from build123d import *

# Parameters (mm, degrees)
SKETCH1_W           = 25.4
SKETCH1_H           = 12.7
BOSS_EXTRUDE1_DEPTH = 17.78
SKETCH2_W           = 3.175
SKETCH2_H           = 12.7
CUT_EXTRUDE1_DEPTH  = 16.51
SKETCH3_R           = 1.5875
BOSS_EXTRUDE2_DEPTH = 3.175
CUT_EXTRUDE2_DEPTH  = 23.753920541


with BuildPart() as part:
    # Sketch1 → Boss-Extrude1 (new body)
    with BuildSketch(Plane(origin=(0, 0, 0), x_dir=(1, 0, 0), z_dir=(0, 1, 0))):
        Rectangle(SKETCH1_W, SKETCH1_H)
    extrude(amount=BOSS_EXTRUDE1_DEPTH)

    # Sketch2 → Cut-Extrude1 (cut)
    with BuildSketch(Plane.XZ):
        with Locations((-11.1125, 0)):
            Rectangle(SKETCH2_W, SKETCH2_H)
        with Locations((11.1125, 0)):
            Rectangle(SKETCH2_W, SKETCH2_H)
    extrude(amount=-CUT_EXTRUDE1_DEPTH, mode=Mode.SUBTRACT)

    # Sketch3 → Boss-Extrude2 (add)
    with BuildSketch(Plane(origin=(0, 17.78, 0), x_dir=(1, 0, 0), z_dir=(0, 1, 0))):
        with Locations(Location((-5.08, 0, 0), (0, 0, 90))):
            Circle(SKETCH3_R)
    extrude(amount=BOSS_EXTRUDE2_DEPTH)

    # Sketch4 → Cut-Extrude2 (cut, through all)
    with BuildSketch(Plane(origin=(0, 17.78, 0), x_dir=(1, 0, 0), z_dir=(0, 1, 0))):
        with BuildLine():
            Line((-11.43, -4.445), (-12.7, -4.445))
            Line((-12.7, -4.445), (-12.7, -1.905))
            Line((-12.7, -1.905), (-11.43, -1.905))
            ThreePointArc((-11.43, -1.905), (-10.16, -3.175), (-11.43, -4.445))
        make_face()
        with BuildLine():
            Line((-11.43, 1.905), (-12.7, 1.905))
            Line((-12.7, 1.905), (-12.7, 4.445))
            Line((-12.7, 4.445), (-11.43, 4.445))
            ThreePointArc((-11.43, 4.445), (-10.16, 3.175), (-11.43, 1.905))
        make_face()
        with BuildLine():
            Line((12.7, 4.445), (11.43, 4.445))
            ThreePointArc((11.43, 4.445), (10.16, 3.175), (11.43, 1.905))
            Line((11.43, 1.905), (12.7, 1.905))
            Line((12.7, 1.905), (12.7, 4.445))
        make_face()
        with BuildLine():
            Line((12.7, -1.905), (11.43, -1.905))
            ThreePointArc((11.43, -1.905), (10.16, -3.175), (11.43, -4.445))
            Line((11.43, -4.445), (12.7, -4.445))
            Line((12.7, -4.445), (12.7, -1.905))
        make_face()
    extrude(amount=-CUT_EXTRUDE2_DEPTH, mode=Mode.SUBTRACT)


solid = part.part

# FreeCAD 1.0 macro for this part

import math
import FreeCAD as App
import Part
import Sketcher

V = App.Vector
Q = App.Units.Quantity

doc = App.newDocument("Part")
body = doc.addObject("PartDesign::Body", "Body")

sketch1 = body.newObject("Sketcher::SketchObject", "Sketch")
sketch1.AttachmentSupport = (doc.getObject("XZ_Plane"), [""])
sketch1.MapMode = "FlatFace"
sketch1.addGeometry([
    Part.LineSegment(V(-13, -6, 0), V(-13, 6, 0)),
    Part.LineSegment(V(-13, 6, 0), V(13, 6, 0)),
    Part.LineSegment(V(13, 6, 0), V(13, -6, 0)),
    Part.LineSegment(V(13, -6, 0), V(-13, -6, 0)),
], False)
sketch1.addConstraint([
    Sketcher.Constraint("Coincident", 0, 2, 1, 1),
    Sketcher.Constraint("Coincident", 1, 2, 2, 1),
    Sketcher.Constraint("Coincident", 2, 2, 3, 1),
    Sketcher.Constraint("Coincident", 3, 2, 0, 1),
    Sketcher.Constraint("Vertical", 0),
    Sketcher.Constraint("Horizontal", 1),
    Sketcher.Constraint("Vertical", 2),
    Sketcher.Constraint("Horizontal", 3),
    Sketcher.Constraint("Symmetric", 0, 2, 2, 2, -1, 1),
    Sketcher.Constraint("DistanceX", 1, 1, 1, 2, Q("1 in")),
    Sketcher.Constraint("DistanceY", 0, 1, 0, 2, Q("0.5 in")),
])
pad1 = body.newObject("PartDesign::Pad", "Pad")
pad1.Profile = sketch1
pad1.Length = Q("0.7 in")
pad1.Reversed = True

sketch2 = body.newObject("Sketcher::SketchObject", "Sketch001")
sketch2.AttachmentSupport = (doc.getObject("XZ_Plane"), [""])
sketch2.MapMode = "FlatFace"
sketch2.addGeometry([
    Part.LineSegment(V(-12.7, 6.3, 0), V(-12.7, -6.3, 0)),
    Part.LineSegment(V(-12.7, -6.3, 0), V(-9.5, -6.3, 0)),
    Part.LineSegment(V(-9.5, -6.3, 0), V(-9.5, 6.3, 0)),
    Part.LineSegment(V(-9.5, 6.3, 0), V(-12.7, 6.3, 0)),
    Part.LineSegment(V(9.5, 6.3, 0), V(9.5, -6.3, 0)),
    Part.LineSegment(V(9.5, -6.3, 0), V(12.7, -6.3, 0)),
    Part.LineSegment(V(12.7, -6.3, 0), V(12.7, 6.3, 0)),
    Part.LineSegment(V(12.7, 6.3, 0), V(9.5, 6.3, 0)),
], False)
sketch2.addConstraint([
    Sketcher.Constraint("Coincident", 0, 2, 1, 1),
    Sketcher.Constraint("Coincident", 1, 2, 2, 1),
    Sketcher.Constraint("Coincident", 2, 2, 3, 1),
    Sketcher.Constraint("Coincident", 3, 2, 0, 1),
    Sketcher.Constraint("Coincident", 4, 2, 5, 1),
    Sketcher.Constraint("Coincident", 5, 2, 6, 1),
    Sketcher.Constraint("Coincident", 6, 2, 7, 1),
    Sketcher.Constraint("Coincident", 7, 2, 4, 1),
    Sketcher.Constraint("Vertical", 0),
    Sketcher.Constraint("Horizontal", 1),
    Sketcher.Constraint("Vertical", 2),
    Sketcher.Constraint("Horizontal", 3),
    Sketcher.Constraint("Vertical", 4),
    Sketcher.Constraint("Horizontal", 5),
    Sketcher.Constraint("Vertical", 6),
    Sketcher.Constraint("Horizontal", 7),
    Sketcher.Constraint("Symmetric", 2, 2, 4, 2, -1, 1),
    Sketcher.Constraint("Symmetric", 0, 2, 6, 2, -1, 1),
    Sketcher.Constraint("Horizontal", 1, 2, 4, 2),
    Sketcher.Constraint("DistanceY", 0, 2, 0, 1, Q("0.5 in")),
    Sketcher.Constraint("DistanceX", 0, 2, 5, 2, Q("1 in")),
    Sketcher.Constraint("DistanceX", 1, 1, 1, 2, Q("0.125 in")),
])
pocket1 = body.newObject("PartDesign::Pocket", "Pocket")
pocket1.Profile = sketch2
pocket1.Length = Q("0.65 in")

sketch3 = body.newObject("Sketcher::SketchObject", "Sketch002")
sketch3.AttachmentSupport = (doc.getObject("XZ_Plane"), [""])
sketch3.MapMode = "FlatFace"
sketch3.AttachmentOffset = App.Placement(V(0, 0, -0.7 * 25.4), App.Rotation())
sketch3.addGeometry(Part.Circle(V(-5.1, 0, 0), V(0, 0, 1), 1.6), False)
sketch3.addConstraint([
    Sketcher.Constraint("PointOnObject", 0, 3, -1),
    Sketcher.Constraint("Diameter", 0, Q("0.125 in")),
    Sketcher.Constraint("DistanceX", 0, 3, -1, 1, Q("0.2 in")),
])
pad2 = body.newObject("PartDesign::Pad", "Pad001")
pad2.Profile = sketch3
pad2.Length = Q("0.125 in")
pad2.Reversed = True

sketch4 = body.newObject("Sketcher::SketchObject", "Sketch003")
sketch4.AttachmentSupport = (doc.getObject("XZ_Plane"), [""])
sketch4.MapMode = "FlatFace"
sketch4.AttachmentOffset = App.Placement(V(0, 0, -0.7 * 25.4), App.Rotation())
sketch4.addGeometry([
    Part.LineSegment(V(-12.7, 4.4, 0), V(-11.4, 4.4, 0)),
    Part.ArcOfCircle(Part.Circle(V(-11.4, 3.2, 0), V(0, 0, 1), 1.3), math.radians(-90), math.radians(90)),
    Part.LineSegment(V(-11.4, 1.9, 0), V(-12.7, 1.9, 0)),
    Part.LineSegment(V(-12.7, 1.9, 0), V(-12.7, 4.4, 0)),
    Part.LineSegment(V(-12.7, -1.9, 0), V(-11.4, -1.9, 0)),
    Part.ArcOfCircle(Part.Circle(V(-11.4, -3.2, 0), V(0, 0, 1), 1.3), math.radians(-90), math.radians(90)),
    Part.LineSegment(V(-11.4, -4.4, 0), V(-12.7, -4.4, 0)),
    Part.LineSegment(V(-12.7, -4.4, 0), V(-12.7, -1.9, 0)),
    Part.LineSegment(V(12.7, -4.4, 0), V(11.4, -4.4, 0)),
    Part.ArcOfCircle(Part.Circle(V(11.4, -3.2, 0), V(0, 0, 1), 1.3), math.radians(90), math.radians(270)),
    Part.LineSegment(V(11.4, -1.9, 0), V(12.7, -1.9, 0)),
    Part.LineSegment(V(12.7, -1.9, 0), V(12.7, -4.4, 0)),
    Part.LineSegment(V(12.7, 1.9, 0), V(11.4, 1.9, 0)),
    Part.ArcOfCircle(Part.Circle(V(11.4, 3.2, 0), V(0, 0, 1), 1.3), math.radians(90), math.radians(270)),
    Part.LineSegment(V(11.4, 4.4, 0), V(12.7, 4.4, 0)),
    Part.LineSegment(V(12.7, 4.4, 0), V(12.7, 1.9, 0)),
], False)
sketch4.addConstraint([
    Sketcher.Constraint("Tangent", 0, 2, 1, 2),
    Sketcher.Constraint("Tangent", 1, 1, 2, 1),
    Sketcher.Constraint("Coincident", 2, 2, 3, 1),
    Sketcher.Constraint("Coincident", 3, 2, 0, 1),
    Sketcher.Constraint("Tangent", 4, 2, 5, 2),
    Sketcher.Constraint("Tangent", 5, 1, 6, 1),
    Sketcher.Constraint("Coincident", 6, 2, 7, 1),
    Sketcher.Constraint("Coincident", 7, 2, 4, 1),
    Sketcher.Constraint("Tangent", 8, 2, 9, 2),
    Sketcher.Constraint("Tangent", 9, 1, 10, 1),
    Sketcher.Constraint("Coincident", 10, 2, 11, 1),
    Sketcher.Constraint("Coincident", 11, 2, 8, 1),
    Sketcher.Constraint("Tangent", 12, 2, 13, 2),
    Sketcher.Constraint("Tangent", 13, 1, 14, 1),
    Sketcher.Constraint("Coincident", 14, 2, 15, 1),
    Sketcher.Constraint("Coincident", 15, 2, 12, 1),
    Sketcher.Constraint("Horizontal", 0),
    Sketcher.Constraint("Horizontal", 2),
    Sketcher.Constraint("Vertical", 3),
    Sketcher.Constraint("Horizontal", 4),
    Sketcher.Constraint("Horizontal", 6),
    Sketcher.Constraint("Vertical", 7),
    Sketcher.Constraint("Horizontal", 8),
    Sketcher.Constraint("Horizontal", 10),
    Sketcher.Constraint("Vertical", 11),
    Sketcher.Constraint("Horizontal", 12),
    Sketcher.Constraint("Horizontal", 14),
    Sketcher.Constraint("Vertical", 15),
    Sketcher.Constraint("Equal", 1, 5),
    Sketcher.Constraint("Equal", 5, 9),
    Sketcher.Constraint("Equal", 9, 13),
    Sketcher.Constraint("Symmetric", 1, 3, 9, 3, -1, 1),
    Sketcher.Constraint("Symmetric", 5, 3, 13, 3, -1, 1),
    Sketcher.Constraint("Symmetric", 5, 3, 9, 3, -2),
    Sketcher.Constraint("Vertical", 3, 2, 6, 2),
    Sketcher.Constraint("Vertical", 11, 2, 14, 2),
    Sketcher.Constraint("Equal", 6, 8),
    Sketcher.Constraint("Radius", 1, Q("0.05 in")),
    Sketcher.Constraint("DistanceX", 0, 1, 0, 2, Q("0.05 in")),
    Sketcher.Constraint("DistanceX", 2, 2, -1, 1, Q("0.5 in")),
    Sketcher.Constraint("DistanceY", 5, 3, 0, 2, Q("0.3 in")),
])
pocket2 = body.newObject("PartDesign::Pocket", "Pocket001")
pocket2.Profile = sketch4
pocket2.Type = "ThroughAll"
pocket2.Reversed = True

doc.recompute()
